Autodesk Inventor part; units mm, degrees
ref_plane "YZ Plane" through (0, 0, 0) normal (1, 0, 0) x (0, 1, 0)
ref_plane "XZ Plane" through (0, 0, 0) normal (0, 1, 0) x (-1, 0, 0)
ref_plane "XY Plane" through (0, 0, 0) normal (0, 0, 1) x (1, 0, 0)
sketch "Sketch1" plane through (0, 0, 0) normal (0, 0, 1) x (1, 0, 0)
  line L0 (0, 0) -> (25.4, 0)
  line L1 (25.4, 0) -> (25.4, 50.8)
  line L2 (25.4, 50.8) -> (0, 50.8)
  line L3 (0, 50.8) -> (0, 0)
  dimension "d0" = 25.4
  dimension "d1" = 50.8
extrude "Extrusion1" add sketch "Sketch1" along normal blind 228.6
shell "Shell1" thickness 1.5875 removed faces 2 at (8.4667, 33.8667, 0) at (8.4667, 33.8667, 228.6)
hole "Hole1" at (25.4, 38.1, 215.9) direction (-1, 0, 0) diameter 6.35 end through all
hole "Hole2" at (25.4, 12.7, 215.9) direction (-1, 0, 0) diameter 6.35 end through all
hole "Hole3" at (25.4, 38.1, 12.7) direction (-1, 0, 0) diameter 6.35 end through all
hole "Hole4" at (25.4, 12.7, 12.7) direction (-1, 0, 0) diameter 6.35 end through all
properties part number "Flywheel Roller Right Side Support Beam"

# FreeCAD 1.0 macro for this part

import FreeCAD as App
import Part
import Sketcher

V = App.Vector
Q = App.Units.Quantity


def faces_at(feature, points):
    """Names of the faces that lie closest to the given points."""
    faces = feature.Shape.Faces
    near = lambda p: min(range(len(faces)), key=lambda i: faces[i].distToShape(Part.Vertex(*p))[0])
    return sorted({f"Face{near(p) + 1}" for p in points})


def add_polygon(sketch, points):
    """Adds a closed chain of lines whose ends are joined by coincident constraints."""
    first, n = sketch.GeometryCount, len(points)
    for a, b in zip(points, points[1:] + points[:1]):
        sketch.addGeometry(Part.LineSegment(App.Vector(*a, 0), App.Vector(*b, 0)), False)
    for i in range(n):
        sketch.addConstraint(Sketcher.Constraint("Coincident", first + i, 2, first + (i + 1) % n, 1))

doc = App.newDocument("Part")
body = doc.addObject("PartDesign::Body", "Body")

# Sketch on XY plane
sketch1 = body.newObject("Sketcher::SketchObject", "Sketch")
sketch1.AttachmentSupport = (doc.getObject("XY_Plane"), [""])
sketch1.MapMode = "FlatFace"
add_polygon(sketch1, [(0, 51), (0, 0), (25, 0), (25, 51)])  # lines 0-3
sketch1.addConstraint(Sketcher.Constraint("Vertical", 0))
sketch1.addConstraint(Sketcher.Constraint("Horizontal", 1))
sketch1.addConstraint(Sketcher.Constraint("Vertical", 2))
sketch1.addConstraint(Sketcher.Constraint("Horizontal", 3))
sketch1.addConstraint(Sketcher.Constraint("Coincident", 0, 2, -1, 1))
sketch1.addConstraint(Sketcher.Constraint("DistanceX", 1, 1, 1, 2, Q("1 in")))
sketch1.addConstraint(Sketcher.Constraint("DistanceY", 0, 2, 0, 1, Q("2 in")))
pad1 = body.newObject("PartDesign::Pad", "Pad")
pad1.Profile = sketch1
pad1.Length = Q("9 in")
doc.recompute()

thickness = body.newObject("PartDesign::Thickness", "Thickness")
thickness.Base = (pad1, faces_at(pad1, [(8.467, 33.867, 0), (8.467, 33.867, 228.6)]))
thickness.Value = Q("0.0625 in")
thickness.Reversed = True
thickness.Join = "Intersection"

# Sketch on YZ plane
sketch2 = body.newObject("Sketcher::SketchObject", "Sketch001")
sketch2.AttachmentSupport = (doc.getObject("YZ_Plane"), [""])
sketch2.MapMode = "FlatFace"
sketch2.AttachmentOffset = App.Placement(V(0, 0, 1 * 25.4), App.Rotation())
sketch2.addGeometry(Part.Circle(V(38.1, 215.9, 0), V(0, 0, 1), 3.2), False)
sketch2.addConstraint(Sketcher.Constraint("Diameter", 0, Q("0.25 in")))
sketch2.addConstraint(Sketcher.Constraint("DistanceX", -1, 1, 0, 3, Q("1.5 in")))
sketch2.addConstraint(Sketcher.Constraint("DistanceY", -1, 1, 0, 3, Q("8.5 in")))
doc.recompute()
hole = body.newObject("PartDesign::Hole", "Hole")
hole.Profile = sketch2
hole.ThreadType = "None"
hole.Diameter = Q("0.25 in")
hole.DepthType = "ThroughAll"

# Sketch on YZ plane
sketch3 = body.newObject("Sketcher::SketchObject", "Sketch002")
sketch3.AttachmentSupport = (doc.getObject("YZ_Plane"), [""])
sketch3.MapMode = "FlatFace"
sketch3.AttachmentOffset = App.Placement(V(0, 0, 1 * 25.4), App.Rotation())
sketch3.addGeometry(Part.Circle(V(12.7, 215.9, 0), V(0, 0, 1), 3.2), False)
sketch3.addConstraint(Sketcher.Constraint("Diameter", 0, Q("0.25 in")))
sketch3.addConstraint(Sketcher.Constraint("DistanceX", -1, 1, 0, 3, Q("0.5 in")))
sketch3.addConstraint(Sketcher.Constraint("DistanceY", -1, 1, 0, 3, Q("8.5 in")))
doc.recompute()
hole2 = body.newObject("PartDesign::Hole", "Hole001")
hole2.Profile = sketch3
hole2.ThreadType = "None"
hole2.Diameter = Q("0.25 in")
hole2.DepthType = "ThroughAll"

# Sketch on YZ plane
sketch4 = body.newObject("Sketcher::SketchObject", "Sketch003")
sketch4.AttachmentSupport = (doc.getObject("YZ_Plane"), [""])
sketch4.MapMode = "FlatFace"
sketch4.AttachmentOffset = App.Placement(V(0, 0, 1 * 25.4), App.Rotation())
sketch4.addGeometry(Part.Circle(V(38.1, 12.7, 0), V(0, 0, 1), 3.2), False)
sketch4.addConstraint(Sketcher.Constraint("Diameter", 0, Q("0.25 in")))
sketch4.addConstraint(Sketcher.Constraint("DistanceX", -1, 1, 0, 3, Q("1.5 in")))
sketch4.addConstraint(Sketcher.Constraint("DistanceY", -1, 1, 0, 3, Q("0.5 in")))
doc.recompute()
hole3 = body.newObject("PartDesign::Hole", "Hole002")
hole3.Profile = sketch4
hole3.ThreadType = "None"
hole3.Diameter = Q("0.25 in")
hole3.DepthType = "ThroughAll"

# Sketch on YZ plane
sketch5 = body.newObject("Sketcher::SketchObject", "Sketch004")
sketch5.AttachmentSupport = (doc.getObject("YZ_Plane"), [""])
sketch5.MapMode = "FlatFace"
sketch5.AttachmentOffset = App.Placement(V(0, 0, 1 * 25.4), App.Rotation())
sketch5.addGeometry(Part.Circle(V(12.7, 12.7, 0), V(0, 0, 1), 3.2), False)
sketch5.addConstraint(Sketcher.Constraint("Diameter", 0, Q("0.25 in")))
sketch5.addConstraint(Sketcher.Constraint("DistanceX", -1, 1, 0, 3, Q("0.5 in")))
sketch5.addConstraint(Sketcher.Constraint("DistanceY", -1, 1, 0, 3, Q("0.5 in")))
doc.recompute()
hole4 = body.newObject("PartDesign::Hole", "Hole003")
hole4.Profile = sketch5
hole4.ThreadType = "None"
hole4.Diameter = Q("0.25 in")
hole4.DepthType = "ThroughAll"

doc.recompute()
